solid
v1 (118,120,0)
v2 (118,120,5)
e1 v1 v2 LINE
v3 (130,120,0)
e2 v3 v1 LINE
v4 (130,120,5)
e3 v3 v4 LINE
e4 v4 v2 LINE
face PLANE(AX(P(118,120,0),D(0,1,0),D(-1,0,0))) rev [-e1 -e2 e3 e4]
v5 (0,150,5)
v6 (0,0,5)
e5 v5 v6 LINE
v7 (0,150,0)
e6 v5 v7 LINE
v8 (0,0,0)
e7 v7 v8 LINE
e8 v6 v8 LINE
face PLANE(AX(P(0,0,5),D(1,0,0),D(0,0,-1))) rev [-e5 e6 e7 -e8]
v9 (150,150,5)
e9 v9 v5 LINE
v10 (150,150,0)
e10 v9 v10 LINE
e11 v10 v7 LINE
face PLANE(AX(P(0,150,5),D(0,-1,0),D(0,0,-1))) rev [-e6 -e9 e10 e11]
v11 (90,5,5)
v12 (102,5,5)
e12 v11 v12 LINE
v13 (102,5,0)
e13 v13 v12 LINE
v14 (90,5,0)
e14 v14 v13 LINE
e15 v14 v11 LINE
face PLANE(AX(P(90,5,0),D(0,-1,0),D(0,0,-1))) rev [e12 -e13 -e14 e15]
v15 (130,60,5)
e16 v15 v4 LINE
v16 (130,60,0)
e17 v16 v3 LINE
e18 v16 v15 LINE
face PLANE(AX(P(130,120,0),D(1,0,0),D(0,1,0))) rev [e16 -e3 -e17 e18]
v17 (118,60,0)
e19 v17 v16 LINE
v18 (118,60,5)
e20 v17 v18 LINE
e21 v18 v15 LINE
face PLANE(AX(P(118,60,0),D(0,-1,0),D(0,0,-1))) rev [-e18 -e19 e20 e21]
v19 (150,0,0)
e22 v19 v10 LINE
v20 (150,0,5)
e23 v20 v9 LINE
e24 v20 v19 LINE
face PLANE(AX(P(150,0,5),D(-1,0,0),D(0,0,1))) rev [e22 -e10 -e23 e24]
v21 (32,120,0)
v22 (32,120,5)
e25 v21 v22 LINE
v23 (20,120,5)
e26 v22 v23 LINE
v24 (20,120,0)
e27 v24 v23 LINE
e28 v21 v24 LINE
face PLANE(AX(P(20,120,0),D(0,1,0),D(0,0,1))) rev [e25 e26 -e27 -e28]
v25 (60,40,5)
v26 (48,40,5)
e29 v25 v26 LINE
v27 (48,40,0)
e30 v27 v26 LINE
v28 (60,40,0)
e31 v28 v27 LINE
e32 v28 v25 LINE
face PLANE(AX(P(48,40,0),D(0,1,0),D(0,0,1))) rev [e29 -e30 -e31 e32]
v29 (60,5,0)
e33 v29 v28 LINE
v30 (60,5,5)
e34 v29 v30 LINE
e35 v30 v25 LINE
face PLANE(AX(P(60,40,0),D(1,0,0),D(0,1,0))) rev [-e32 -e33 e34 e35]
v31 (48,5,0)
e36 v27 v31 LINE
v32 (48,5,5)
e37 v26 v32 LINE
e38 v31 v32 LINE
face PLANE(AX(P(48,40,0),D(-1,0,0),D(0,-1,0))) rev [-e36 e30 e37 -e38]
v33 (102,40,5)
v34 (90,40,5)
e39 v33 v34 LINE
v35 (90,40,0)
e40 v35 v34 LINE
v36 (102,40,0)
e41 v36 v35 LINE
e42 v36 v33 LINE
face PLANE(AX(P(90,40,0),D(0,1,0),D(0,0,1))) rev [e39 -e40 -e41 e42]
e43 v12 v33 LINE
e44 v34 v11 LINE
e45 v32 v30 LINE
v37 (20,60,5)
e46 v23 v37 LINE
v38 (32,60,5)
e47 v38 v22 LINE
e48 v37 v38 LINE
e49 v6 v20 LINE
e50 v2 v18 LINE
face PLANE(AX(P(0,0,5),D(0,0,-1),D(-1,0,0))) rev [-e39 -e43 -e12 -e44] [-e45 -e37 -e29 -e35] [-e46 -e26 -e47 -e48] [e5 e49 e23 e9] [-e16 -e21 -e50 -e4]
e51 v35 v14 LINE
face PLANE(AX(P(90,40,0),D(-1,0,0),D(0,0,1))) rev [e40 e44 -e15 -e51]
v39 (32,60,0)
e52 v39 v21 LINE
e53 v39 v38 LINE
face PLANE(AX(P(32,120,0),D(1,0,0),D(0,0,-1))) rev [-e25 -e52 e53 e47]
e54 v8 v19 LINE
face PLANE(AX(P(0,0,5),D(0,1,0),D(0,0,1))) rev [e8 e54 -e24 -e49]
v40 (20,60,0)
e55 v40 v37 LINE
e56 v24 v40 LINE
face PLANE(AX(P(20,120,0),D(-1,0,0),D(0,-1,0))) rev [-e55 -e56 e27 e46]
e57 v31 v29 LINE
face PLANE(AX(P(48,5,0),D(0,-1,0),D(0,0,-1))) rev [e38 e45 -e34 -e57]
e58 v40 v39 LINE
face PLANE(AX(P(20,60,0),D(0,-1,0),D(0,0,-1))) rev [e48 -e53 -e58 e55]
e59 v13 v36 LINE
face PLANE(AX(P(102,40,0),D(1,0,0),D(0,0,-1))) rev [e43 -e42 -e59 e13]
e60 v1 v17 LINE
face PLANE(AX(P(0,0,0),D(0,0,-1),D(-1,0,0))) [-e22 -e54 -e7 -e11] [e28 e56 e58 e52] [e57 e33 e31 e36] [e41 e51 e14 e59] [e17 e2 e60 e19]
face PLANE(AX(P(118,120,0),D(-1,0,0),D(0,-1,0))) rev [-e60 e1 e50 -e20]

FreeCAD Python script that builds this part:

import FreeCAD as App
import Part
import Sketcher
from FreeCAD import Vector

doc = App.newDocument("Part")
body = doc.addObject("PartDesign::Body", "Body")

# Sketch on XY plane
sketch1 = body.newObject("Sketcher::SketchObject", "Sketch")
sketch1.AttachmentSupport = (doc.getObject("XY_Plane"), [""])
sketch1.MapMode = "FlatFace"
sketch1.addGeometry(Part.LineSegment(Vector(0, 150, 0), Vector(0, 0, 0)), False)
sketch1.addGeometry(Part.LineSegment(Vector(0, 0, 0), Vector(150, 0, 0)), False)
sketch1.addGeometry(Part.LineSegment(Vector(150, 0, 0), Vector(150, 150, 0)), False)
sketch1.addGeometry(Part.LineSegment(Vector(150, 150, 0), Vector(0, 150, 0)), False)
sketch1.addConstraint(Sketcher.Constraint("Coincident", 0, 2, 1, 1))
sketch1.addConstraint(Sketcher.Constraint("Coincident", 1, 2, 2, 1))
sketch1.addConstraint(Sketcher.Constraint("Coincident", 2, 2, 3, 1))
sketch1.addConstraint(Sketcher.Constraint("Coincident", 3, 2, 0, 1))
sketch1.addConstraint(Sketcher.Constraint("Vertical", 0))
sketch1.addConstraint(Sketcher.Constraint("Horizontal", 1))
sketch1.addConstraint(Sketcher.Constraint("Vertical", 2))
sketch1.addConstraint(Sketcher.Constraint("Horizontal", 3))
sketch1.addConstraint(Sketcher.Constraint("Coincident", 0, 2, -1, 1))
sketch1.addConstraint(Sketcher.Constraint("Equal", 3, 0))
sketch1.addConstraint(Sketcher.Constraint("DistanceX", 1, 1, 1, 2, 150.0))
pad1 = body.newObject("PartDesign::Pad", "Pad")
pad1.Profile = sketch1
pad1.Length = 5

# Sketch on XY plane
sketch2 = body.newObject("Sketcher::SketchObject", "Sketch001")
sketch2.AttachmentSupport = (doc.getObject("XY_Plane"), [""])
sketch2.MapMode = "FlatFace"
sketch2.AttachmentOffset = App.Placement(Vector(0, 0, 5), App.Rotation())
sketch2.addGeometry(Part.LineSegment(Vector(20, 120, 0), Vector(20, 60, 0)), False)
sketch2.addGeometry(Part.LineSegment(Vector(20, 60, 0), Vector(32, 60, 0)), False)
sketch2.addGeometry(Part.LineSegment(Vector(32, 60, 0), Vector(32, 120, 0)), False)
sketch2.addGeometry(Part.LineSegment(Vector(32, 120, 0), Vector(20, 120, 0)), False)
sketch2.addGeometry(Part.LineSegment(Vector(118, 120, 0), Vector(118, 60, 0)), False)
sketch2.addGeometry(Part.LineSegment(Vector(118, 60, 0), Vector(130, 60, 0)), False)
sketch2.addGeometry(Part.LineSegment(Vector(130, 60, 0), Vector(130, 120, 0)), False)
sketch2.addGeometry(Part.LineSegment(Vector(130, 120, 0), Vector(118, 120, 0)), False)
sketch2.addGeometry(Part.LineSegment(Vector(48, 40, 0), Vector(48, 5, 0)), False)
sketch2.addGeometry(Part.LineSegment(Vector(48, 5, 0), Vector(60, 5, 0)), False)
sketch2.addGeometry(Part.LineSegment(Vector(60, 5, 0), Vector(60, 40, 0)), False)
sketch2.addGeometry(Part.LineSegment(Vector(60, 40, 0), Vector(48, 40, 0)), False)
sketch2.addGeometry(Part.LineSegment(Vector(90, 40, 0), Vector(90, 5, 0)), False)
sketch2.addGeometry(Part.LineSegment(Vector(90, 5, 0), Vector(102, 5, 0)), False)
sketch2.addGeometry(Part.LineSegment(Vector(102, 5, 0), Vector(102, 40, 0)), False)
sketch2.addGeometry(Part.LineSegment(Vector(102, 40, 0), Vector(90, 40, 0)), False)
sketch2.addConstraint(Sketcher.Constraint("Coincident", 0, 2, 1, 1))
sketch2.addConstraint(Sketcher.Constraint("Coincident", 1, 2, 2, 1))
sketch2.addConstraint(Sketcher.Constraint("Coincident", 2, 2, 3, 1))
sketch2.addConstraint(Sketcher.Constraint("Coincident", 3, 2, 0, 1))
sketch2.addConstraint(Sketcher.Constraint("Coincident", 4, 2, 5, 1))
sketch2.addConstraint(Sketcher.Constraint("Coincident", 5, 2, 6, 1))
sketch2.addConstraint(Sketcher.Constraint("Coincident", 6, 2, 7, 1))
sketch2.addConstraint(Sketcher.Constraint("Coincident", 7, 2, 4, 1))
sketch2.addConstraint(Sketcher.Constraint("Coincident", 8, 2, 9, 1))
sketch2.addConstraint(Sketcher.Constraint("Coincident", 9, 2, 10, 1))
sketch2.addConstraint(Sketcher.Constraint("Coincident", 10, 2, 11, 1))
sketch2.addConstraint(Sketcher.Constraint("Coincident", 11, 2, 8, 1))
sketch2.addConstraint(Sketcher.Constraint("Coincident", 12, 2, 13, 1))
sketch2.addConstraint(Sketcher.Constraint("Coincident", 13, 2, 14, 1))
sketch2.addConstraint(Sketcher.Constraint("Coincident", 14, 2, 15, 1))
sketch2.addConstraint(Sketcher.Constraint("Coincident", 15, 2, 12, 1))
sketch2.addConstraint(Sketcher.Constraint("Vertical", 0))
sketch2.addConstraint(Sketcher.Constraint("Horizontal", 1))
sketch2.addConstraint(Sketcher.Constraint("Vertical", 2))
sketch2.addConstraint(Sketcher.Constraint("Horizontal", 3))
sketch2.addConstraint(Sketcher.Constraint("Vertical", 4))
sketch2.addConstraint(Sketcher.Constraint("Horizontal", 5))
sketch2.addConstraint(Sketcher.Constraint("Vertical", 6))
sketch2.addConstraint(Sketcher.Constraint("Horizontal", 7))
sketch2.addConstraint(Sketcher.Constraint("Vertical", 8))
sketch2.addConstraint(Sketcher.Constraint("Horizontal", 9))
sketch2.addConstraint(Sketcher.Constraint("Vertical", 10))
sketch2.addConstraint(Sketcher.Constraint("Horizontal", 11))
sketch2.addConstraint(Sketcher.Constraint("Vertical", 12))
sketch2.addConstraint(Sketcher.Constraint("Horizontal", 13))
sketch2.addConstraint(Sketcher.Constraint("Vertical", 14))
sketch2.addConstraint(Sketcher.Constraint("Horizontal", 15))
sketch2.addConstraint(Sketcher.Constraint("Horizontal", 1, 2, 4, 2))
sketch2.addConstraint(Sketcher.Constraint("Horizontal", 3, 2, 6, 2))
sketch2.addConstraint(Sketcher.Constraint("Horizontal", 9, 2, 12, 2))
sketch2.addConstraint(Sketcher.Constraint("Horizontal", 11, 2, 14, 2))
sketch2.addConstraint(Sketcher.Constraint("Equal", 3, 5))
sketch2.addConstraint(Sketcher.Constraint("Equal", 7, 9))
sketch2.addConstraint(Sketcher.Constraint("Equal", 11, 13))
sketch2.addConstraint(Sketcher.Constraint("DistanceX", 1, 1, 1, 2, 12.0))
sketch2.addConstraint(Sketcher.Constraint("DistanceY", 0, 2, 0, 1, 60.0))
sketch2.addConstraint(Sketcher.Constraint("DistanceY", 8, 2, 8, 1, 35.0))
sketch2.addConstraint(Sketcher.Constraint("DistanceX", -1, 1, 0, 2, 20.0))
sketch2.addConstraint(Sketcher.Constraint("DistanceY", -1, 1, 0, 2, 60.0))
sketch2.addConstraint(Sketcher.Constraint("DistanceX", -1, 1, 4, 2, 118.0))
sketch2.addConstraint(Sketcher.Constraint("DistanceX", -1, 1, 8, 2, 48.0))
sketch2.addConstraint(Sketcher.Constraint("DistanceY", -1, 1, 8, 2, 5.0))
sketch2.addConstraint(Sketcher.Constraint("DistanceX", -1, 1, 12, 2, 90.0))
pocket1 = body.newObject("PartDesign::Pocket", "Pocket")
pocket1.Profile = sketch2
pocket1.Length = 5

doc.recompute()
